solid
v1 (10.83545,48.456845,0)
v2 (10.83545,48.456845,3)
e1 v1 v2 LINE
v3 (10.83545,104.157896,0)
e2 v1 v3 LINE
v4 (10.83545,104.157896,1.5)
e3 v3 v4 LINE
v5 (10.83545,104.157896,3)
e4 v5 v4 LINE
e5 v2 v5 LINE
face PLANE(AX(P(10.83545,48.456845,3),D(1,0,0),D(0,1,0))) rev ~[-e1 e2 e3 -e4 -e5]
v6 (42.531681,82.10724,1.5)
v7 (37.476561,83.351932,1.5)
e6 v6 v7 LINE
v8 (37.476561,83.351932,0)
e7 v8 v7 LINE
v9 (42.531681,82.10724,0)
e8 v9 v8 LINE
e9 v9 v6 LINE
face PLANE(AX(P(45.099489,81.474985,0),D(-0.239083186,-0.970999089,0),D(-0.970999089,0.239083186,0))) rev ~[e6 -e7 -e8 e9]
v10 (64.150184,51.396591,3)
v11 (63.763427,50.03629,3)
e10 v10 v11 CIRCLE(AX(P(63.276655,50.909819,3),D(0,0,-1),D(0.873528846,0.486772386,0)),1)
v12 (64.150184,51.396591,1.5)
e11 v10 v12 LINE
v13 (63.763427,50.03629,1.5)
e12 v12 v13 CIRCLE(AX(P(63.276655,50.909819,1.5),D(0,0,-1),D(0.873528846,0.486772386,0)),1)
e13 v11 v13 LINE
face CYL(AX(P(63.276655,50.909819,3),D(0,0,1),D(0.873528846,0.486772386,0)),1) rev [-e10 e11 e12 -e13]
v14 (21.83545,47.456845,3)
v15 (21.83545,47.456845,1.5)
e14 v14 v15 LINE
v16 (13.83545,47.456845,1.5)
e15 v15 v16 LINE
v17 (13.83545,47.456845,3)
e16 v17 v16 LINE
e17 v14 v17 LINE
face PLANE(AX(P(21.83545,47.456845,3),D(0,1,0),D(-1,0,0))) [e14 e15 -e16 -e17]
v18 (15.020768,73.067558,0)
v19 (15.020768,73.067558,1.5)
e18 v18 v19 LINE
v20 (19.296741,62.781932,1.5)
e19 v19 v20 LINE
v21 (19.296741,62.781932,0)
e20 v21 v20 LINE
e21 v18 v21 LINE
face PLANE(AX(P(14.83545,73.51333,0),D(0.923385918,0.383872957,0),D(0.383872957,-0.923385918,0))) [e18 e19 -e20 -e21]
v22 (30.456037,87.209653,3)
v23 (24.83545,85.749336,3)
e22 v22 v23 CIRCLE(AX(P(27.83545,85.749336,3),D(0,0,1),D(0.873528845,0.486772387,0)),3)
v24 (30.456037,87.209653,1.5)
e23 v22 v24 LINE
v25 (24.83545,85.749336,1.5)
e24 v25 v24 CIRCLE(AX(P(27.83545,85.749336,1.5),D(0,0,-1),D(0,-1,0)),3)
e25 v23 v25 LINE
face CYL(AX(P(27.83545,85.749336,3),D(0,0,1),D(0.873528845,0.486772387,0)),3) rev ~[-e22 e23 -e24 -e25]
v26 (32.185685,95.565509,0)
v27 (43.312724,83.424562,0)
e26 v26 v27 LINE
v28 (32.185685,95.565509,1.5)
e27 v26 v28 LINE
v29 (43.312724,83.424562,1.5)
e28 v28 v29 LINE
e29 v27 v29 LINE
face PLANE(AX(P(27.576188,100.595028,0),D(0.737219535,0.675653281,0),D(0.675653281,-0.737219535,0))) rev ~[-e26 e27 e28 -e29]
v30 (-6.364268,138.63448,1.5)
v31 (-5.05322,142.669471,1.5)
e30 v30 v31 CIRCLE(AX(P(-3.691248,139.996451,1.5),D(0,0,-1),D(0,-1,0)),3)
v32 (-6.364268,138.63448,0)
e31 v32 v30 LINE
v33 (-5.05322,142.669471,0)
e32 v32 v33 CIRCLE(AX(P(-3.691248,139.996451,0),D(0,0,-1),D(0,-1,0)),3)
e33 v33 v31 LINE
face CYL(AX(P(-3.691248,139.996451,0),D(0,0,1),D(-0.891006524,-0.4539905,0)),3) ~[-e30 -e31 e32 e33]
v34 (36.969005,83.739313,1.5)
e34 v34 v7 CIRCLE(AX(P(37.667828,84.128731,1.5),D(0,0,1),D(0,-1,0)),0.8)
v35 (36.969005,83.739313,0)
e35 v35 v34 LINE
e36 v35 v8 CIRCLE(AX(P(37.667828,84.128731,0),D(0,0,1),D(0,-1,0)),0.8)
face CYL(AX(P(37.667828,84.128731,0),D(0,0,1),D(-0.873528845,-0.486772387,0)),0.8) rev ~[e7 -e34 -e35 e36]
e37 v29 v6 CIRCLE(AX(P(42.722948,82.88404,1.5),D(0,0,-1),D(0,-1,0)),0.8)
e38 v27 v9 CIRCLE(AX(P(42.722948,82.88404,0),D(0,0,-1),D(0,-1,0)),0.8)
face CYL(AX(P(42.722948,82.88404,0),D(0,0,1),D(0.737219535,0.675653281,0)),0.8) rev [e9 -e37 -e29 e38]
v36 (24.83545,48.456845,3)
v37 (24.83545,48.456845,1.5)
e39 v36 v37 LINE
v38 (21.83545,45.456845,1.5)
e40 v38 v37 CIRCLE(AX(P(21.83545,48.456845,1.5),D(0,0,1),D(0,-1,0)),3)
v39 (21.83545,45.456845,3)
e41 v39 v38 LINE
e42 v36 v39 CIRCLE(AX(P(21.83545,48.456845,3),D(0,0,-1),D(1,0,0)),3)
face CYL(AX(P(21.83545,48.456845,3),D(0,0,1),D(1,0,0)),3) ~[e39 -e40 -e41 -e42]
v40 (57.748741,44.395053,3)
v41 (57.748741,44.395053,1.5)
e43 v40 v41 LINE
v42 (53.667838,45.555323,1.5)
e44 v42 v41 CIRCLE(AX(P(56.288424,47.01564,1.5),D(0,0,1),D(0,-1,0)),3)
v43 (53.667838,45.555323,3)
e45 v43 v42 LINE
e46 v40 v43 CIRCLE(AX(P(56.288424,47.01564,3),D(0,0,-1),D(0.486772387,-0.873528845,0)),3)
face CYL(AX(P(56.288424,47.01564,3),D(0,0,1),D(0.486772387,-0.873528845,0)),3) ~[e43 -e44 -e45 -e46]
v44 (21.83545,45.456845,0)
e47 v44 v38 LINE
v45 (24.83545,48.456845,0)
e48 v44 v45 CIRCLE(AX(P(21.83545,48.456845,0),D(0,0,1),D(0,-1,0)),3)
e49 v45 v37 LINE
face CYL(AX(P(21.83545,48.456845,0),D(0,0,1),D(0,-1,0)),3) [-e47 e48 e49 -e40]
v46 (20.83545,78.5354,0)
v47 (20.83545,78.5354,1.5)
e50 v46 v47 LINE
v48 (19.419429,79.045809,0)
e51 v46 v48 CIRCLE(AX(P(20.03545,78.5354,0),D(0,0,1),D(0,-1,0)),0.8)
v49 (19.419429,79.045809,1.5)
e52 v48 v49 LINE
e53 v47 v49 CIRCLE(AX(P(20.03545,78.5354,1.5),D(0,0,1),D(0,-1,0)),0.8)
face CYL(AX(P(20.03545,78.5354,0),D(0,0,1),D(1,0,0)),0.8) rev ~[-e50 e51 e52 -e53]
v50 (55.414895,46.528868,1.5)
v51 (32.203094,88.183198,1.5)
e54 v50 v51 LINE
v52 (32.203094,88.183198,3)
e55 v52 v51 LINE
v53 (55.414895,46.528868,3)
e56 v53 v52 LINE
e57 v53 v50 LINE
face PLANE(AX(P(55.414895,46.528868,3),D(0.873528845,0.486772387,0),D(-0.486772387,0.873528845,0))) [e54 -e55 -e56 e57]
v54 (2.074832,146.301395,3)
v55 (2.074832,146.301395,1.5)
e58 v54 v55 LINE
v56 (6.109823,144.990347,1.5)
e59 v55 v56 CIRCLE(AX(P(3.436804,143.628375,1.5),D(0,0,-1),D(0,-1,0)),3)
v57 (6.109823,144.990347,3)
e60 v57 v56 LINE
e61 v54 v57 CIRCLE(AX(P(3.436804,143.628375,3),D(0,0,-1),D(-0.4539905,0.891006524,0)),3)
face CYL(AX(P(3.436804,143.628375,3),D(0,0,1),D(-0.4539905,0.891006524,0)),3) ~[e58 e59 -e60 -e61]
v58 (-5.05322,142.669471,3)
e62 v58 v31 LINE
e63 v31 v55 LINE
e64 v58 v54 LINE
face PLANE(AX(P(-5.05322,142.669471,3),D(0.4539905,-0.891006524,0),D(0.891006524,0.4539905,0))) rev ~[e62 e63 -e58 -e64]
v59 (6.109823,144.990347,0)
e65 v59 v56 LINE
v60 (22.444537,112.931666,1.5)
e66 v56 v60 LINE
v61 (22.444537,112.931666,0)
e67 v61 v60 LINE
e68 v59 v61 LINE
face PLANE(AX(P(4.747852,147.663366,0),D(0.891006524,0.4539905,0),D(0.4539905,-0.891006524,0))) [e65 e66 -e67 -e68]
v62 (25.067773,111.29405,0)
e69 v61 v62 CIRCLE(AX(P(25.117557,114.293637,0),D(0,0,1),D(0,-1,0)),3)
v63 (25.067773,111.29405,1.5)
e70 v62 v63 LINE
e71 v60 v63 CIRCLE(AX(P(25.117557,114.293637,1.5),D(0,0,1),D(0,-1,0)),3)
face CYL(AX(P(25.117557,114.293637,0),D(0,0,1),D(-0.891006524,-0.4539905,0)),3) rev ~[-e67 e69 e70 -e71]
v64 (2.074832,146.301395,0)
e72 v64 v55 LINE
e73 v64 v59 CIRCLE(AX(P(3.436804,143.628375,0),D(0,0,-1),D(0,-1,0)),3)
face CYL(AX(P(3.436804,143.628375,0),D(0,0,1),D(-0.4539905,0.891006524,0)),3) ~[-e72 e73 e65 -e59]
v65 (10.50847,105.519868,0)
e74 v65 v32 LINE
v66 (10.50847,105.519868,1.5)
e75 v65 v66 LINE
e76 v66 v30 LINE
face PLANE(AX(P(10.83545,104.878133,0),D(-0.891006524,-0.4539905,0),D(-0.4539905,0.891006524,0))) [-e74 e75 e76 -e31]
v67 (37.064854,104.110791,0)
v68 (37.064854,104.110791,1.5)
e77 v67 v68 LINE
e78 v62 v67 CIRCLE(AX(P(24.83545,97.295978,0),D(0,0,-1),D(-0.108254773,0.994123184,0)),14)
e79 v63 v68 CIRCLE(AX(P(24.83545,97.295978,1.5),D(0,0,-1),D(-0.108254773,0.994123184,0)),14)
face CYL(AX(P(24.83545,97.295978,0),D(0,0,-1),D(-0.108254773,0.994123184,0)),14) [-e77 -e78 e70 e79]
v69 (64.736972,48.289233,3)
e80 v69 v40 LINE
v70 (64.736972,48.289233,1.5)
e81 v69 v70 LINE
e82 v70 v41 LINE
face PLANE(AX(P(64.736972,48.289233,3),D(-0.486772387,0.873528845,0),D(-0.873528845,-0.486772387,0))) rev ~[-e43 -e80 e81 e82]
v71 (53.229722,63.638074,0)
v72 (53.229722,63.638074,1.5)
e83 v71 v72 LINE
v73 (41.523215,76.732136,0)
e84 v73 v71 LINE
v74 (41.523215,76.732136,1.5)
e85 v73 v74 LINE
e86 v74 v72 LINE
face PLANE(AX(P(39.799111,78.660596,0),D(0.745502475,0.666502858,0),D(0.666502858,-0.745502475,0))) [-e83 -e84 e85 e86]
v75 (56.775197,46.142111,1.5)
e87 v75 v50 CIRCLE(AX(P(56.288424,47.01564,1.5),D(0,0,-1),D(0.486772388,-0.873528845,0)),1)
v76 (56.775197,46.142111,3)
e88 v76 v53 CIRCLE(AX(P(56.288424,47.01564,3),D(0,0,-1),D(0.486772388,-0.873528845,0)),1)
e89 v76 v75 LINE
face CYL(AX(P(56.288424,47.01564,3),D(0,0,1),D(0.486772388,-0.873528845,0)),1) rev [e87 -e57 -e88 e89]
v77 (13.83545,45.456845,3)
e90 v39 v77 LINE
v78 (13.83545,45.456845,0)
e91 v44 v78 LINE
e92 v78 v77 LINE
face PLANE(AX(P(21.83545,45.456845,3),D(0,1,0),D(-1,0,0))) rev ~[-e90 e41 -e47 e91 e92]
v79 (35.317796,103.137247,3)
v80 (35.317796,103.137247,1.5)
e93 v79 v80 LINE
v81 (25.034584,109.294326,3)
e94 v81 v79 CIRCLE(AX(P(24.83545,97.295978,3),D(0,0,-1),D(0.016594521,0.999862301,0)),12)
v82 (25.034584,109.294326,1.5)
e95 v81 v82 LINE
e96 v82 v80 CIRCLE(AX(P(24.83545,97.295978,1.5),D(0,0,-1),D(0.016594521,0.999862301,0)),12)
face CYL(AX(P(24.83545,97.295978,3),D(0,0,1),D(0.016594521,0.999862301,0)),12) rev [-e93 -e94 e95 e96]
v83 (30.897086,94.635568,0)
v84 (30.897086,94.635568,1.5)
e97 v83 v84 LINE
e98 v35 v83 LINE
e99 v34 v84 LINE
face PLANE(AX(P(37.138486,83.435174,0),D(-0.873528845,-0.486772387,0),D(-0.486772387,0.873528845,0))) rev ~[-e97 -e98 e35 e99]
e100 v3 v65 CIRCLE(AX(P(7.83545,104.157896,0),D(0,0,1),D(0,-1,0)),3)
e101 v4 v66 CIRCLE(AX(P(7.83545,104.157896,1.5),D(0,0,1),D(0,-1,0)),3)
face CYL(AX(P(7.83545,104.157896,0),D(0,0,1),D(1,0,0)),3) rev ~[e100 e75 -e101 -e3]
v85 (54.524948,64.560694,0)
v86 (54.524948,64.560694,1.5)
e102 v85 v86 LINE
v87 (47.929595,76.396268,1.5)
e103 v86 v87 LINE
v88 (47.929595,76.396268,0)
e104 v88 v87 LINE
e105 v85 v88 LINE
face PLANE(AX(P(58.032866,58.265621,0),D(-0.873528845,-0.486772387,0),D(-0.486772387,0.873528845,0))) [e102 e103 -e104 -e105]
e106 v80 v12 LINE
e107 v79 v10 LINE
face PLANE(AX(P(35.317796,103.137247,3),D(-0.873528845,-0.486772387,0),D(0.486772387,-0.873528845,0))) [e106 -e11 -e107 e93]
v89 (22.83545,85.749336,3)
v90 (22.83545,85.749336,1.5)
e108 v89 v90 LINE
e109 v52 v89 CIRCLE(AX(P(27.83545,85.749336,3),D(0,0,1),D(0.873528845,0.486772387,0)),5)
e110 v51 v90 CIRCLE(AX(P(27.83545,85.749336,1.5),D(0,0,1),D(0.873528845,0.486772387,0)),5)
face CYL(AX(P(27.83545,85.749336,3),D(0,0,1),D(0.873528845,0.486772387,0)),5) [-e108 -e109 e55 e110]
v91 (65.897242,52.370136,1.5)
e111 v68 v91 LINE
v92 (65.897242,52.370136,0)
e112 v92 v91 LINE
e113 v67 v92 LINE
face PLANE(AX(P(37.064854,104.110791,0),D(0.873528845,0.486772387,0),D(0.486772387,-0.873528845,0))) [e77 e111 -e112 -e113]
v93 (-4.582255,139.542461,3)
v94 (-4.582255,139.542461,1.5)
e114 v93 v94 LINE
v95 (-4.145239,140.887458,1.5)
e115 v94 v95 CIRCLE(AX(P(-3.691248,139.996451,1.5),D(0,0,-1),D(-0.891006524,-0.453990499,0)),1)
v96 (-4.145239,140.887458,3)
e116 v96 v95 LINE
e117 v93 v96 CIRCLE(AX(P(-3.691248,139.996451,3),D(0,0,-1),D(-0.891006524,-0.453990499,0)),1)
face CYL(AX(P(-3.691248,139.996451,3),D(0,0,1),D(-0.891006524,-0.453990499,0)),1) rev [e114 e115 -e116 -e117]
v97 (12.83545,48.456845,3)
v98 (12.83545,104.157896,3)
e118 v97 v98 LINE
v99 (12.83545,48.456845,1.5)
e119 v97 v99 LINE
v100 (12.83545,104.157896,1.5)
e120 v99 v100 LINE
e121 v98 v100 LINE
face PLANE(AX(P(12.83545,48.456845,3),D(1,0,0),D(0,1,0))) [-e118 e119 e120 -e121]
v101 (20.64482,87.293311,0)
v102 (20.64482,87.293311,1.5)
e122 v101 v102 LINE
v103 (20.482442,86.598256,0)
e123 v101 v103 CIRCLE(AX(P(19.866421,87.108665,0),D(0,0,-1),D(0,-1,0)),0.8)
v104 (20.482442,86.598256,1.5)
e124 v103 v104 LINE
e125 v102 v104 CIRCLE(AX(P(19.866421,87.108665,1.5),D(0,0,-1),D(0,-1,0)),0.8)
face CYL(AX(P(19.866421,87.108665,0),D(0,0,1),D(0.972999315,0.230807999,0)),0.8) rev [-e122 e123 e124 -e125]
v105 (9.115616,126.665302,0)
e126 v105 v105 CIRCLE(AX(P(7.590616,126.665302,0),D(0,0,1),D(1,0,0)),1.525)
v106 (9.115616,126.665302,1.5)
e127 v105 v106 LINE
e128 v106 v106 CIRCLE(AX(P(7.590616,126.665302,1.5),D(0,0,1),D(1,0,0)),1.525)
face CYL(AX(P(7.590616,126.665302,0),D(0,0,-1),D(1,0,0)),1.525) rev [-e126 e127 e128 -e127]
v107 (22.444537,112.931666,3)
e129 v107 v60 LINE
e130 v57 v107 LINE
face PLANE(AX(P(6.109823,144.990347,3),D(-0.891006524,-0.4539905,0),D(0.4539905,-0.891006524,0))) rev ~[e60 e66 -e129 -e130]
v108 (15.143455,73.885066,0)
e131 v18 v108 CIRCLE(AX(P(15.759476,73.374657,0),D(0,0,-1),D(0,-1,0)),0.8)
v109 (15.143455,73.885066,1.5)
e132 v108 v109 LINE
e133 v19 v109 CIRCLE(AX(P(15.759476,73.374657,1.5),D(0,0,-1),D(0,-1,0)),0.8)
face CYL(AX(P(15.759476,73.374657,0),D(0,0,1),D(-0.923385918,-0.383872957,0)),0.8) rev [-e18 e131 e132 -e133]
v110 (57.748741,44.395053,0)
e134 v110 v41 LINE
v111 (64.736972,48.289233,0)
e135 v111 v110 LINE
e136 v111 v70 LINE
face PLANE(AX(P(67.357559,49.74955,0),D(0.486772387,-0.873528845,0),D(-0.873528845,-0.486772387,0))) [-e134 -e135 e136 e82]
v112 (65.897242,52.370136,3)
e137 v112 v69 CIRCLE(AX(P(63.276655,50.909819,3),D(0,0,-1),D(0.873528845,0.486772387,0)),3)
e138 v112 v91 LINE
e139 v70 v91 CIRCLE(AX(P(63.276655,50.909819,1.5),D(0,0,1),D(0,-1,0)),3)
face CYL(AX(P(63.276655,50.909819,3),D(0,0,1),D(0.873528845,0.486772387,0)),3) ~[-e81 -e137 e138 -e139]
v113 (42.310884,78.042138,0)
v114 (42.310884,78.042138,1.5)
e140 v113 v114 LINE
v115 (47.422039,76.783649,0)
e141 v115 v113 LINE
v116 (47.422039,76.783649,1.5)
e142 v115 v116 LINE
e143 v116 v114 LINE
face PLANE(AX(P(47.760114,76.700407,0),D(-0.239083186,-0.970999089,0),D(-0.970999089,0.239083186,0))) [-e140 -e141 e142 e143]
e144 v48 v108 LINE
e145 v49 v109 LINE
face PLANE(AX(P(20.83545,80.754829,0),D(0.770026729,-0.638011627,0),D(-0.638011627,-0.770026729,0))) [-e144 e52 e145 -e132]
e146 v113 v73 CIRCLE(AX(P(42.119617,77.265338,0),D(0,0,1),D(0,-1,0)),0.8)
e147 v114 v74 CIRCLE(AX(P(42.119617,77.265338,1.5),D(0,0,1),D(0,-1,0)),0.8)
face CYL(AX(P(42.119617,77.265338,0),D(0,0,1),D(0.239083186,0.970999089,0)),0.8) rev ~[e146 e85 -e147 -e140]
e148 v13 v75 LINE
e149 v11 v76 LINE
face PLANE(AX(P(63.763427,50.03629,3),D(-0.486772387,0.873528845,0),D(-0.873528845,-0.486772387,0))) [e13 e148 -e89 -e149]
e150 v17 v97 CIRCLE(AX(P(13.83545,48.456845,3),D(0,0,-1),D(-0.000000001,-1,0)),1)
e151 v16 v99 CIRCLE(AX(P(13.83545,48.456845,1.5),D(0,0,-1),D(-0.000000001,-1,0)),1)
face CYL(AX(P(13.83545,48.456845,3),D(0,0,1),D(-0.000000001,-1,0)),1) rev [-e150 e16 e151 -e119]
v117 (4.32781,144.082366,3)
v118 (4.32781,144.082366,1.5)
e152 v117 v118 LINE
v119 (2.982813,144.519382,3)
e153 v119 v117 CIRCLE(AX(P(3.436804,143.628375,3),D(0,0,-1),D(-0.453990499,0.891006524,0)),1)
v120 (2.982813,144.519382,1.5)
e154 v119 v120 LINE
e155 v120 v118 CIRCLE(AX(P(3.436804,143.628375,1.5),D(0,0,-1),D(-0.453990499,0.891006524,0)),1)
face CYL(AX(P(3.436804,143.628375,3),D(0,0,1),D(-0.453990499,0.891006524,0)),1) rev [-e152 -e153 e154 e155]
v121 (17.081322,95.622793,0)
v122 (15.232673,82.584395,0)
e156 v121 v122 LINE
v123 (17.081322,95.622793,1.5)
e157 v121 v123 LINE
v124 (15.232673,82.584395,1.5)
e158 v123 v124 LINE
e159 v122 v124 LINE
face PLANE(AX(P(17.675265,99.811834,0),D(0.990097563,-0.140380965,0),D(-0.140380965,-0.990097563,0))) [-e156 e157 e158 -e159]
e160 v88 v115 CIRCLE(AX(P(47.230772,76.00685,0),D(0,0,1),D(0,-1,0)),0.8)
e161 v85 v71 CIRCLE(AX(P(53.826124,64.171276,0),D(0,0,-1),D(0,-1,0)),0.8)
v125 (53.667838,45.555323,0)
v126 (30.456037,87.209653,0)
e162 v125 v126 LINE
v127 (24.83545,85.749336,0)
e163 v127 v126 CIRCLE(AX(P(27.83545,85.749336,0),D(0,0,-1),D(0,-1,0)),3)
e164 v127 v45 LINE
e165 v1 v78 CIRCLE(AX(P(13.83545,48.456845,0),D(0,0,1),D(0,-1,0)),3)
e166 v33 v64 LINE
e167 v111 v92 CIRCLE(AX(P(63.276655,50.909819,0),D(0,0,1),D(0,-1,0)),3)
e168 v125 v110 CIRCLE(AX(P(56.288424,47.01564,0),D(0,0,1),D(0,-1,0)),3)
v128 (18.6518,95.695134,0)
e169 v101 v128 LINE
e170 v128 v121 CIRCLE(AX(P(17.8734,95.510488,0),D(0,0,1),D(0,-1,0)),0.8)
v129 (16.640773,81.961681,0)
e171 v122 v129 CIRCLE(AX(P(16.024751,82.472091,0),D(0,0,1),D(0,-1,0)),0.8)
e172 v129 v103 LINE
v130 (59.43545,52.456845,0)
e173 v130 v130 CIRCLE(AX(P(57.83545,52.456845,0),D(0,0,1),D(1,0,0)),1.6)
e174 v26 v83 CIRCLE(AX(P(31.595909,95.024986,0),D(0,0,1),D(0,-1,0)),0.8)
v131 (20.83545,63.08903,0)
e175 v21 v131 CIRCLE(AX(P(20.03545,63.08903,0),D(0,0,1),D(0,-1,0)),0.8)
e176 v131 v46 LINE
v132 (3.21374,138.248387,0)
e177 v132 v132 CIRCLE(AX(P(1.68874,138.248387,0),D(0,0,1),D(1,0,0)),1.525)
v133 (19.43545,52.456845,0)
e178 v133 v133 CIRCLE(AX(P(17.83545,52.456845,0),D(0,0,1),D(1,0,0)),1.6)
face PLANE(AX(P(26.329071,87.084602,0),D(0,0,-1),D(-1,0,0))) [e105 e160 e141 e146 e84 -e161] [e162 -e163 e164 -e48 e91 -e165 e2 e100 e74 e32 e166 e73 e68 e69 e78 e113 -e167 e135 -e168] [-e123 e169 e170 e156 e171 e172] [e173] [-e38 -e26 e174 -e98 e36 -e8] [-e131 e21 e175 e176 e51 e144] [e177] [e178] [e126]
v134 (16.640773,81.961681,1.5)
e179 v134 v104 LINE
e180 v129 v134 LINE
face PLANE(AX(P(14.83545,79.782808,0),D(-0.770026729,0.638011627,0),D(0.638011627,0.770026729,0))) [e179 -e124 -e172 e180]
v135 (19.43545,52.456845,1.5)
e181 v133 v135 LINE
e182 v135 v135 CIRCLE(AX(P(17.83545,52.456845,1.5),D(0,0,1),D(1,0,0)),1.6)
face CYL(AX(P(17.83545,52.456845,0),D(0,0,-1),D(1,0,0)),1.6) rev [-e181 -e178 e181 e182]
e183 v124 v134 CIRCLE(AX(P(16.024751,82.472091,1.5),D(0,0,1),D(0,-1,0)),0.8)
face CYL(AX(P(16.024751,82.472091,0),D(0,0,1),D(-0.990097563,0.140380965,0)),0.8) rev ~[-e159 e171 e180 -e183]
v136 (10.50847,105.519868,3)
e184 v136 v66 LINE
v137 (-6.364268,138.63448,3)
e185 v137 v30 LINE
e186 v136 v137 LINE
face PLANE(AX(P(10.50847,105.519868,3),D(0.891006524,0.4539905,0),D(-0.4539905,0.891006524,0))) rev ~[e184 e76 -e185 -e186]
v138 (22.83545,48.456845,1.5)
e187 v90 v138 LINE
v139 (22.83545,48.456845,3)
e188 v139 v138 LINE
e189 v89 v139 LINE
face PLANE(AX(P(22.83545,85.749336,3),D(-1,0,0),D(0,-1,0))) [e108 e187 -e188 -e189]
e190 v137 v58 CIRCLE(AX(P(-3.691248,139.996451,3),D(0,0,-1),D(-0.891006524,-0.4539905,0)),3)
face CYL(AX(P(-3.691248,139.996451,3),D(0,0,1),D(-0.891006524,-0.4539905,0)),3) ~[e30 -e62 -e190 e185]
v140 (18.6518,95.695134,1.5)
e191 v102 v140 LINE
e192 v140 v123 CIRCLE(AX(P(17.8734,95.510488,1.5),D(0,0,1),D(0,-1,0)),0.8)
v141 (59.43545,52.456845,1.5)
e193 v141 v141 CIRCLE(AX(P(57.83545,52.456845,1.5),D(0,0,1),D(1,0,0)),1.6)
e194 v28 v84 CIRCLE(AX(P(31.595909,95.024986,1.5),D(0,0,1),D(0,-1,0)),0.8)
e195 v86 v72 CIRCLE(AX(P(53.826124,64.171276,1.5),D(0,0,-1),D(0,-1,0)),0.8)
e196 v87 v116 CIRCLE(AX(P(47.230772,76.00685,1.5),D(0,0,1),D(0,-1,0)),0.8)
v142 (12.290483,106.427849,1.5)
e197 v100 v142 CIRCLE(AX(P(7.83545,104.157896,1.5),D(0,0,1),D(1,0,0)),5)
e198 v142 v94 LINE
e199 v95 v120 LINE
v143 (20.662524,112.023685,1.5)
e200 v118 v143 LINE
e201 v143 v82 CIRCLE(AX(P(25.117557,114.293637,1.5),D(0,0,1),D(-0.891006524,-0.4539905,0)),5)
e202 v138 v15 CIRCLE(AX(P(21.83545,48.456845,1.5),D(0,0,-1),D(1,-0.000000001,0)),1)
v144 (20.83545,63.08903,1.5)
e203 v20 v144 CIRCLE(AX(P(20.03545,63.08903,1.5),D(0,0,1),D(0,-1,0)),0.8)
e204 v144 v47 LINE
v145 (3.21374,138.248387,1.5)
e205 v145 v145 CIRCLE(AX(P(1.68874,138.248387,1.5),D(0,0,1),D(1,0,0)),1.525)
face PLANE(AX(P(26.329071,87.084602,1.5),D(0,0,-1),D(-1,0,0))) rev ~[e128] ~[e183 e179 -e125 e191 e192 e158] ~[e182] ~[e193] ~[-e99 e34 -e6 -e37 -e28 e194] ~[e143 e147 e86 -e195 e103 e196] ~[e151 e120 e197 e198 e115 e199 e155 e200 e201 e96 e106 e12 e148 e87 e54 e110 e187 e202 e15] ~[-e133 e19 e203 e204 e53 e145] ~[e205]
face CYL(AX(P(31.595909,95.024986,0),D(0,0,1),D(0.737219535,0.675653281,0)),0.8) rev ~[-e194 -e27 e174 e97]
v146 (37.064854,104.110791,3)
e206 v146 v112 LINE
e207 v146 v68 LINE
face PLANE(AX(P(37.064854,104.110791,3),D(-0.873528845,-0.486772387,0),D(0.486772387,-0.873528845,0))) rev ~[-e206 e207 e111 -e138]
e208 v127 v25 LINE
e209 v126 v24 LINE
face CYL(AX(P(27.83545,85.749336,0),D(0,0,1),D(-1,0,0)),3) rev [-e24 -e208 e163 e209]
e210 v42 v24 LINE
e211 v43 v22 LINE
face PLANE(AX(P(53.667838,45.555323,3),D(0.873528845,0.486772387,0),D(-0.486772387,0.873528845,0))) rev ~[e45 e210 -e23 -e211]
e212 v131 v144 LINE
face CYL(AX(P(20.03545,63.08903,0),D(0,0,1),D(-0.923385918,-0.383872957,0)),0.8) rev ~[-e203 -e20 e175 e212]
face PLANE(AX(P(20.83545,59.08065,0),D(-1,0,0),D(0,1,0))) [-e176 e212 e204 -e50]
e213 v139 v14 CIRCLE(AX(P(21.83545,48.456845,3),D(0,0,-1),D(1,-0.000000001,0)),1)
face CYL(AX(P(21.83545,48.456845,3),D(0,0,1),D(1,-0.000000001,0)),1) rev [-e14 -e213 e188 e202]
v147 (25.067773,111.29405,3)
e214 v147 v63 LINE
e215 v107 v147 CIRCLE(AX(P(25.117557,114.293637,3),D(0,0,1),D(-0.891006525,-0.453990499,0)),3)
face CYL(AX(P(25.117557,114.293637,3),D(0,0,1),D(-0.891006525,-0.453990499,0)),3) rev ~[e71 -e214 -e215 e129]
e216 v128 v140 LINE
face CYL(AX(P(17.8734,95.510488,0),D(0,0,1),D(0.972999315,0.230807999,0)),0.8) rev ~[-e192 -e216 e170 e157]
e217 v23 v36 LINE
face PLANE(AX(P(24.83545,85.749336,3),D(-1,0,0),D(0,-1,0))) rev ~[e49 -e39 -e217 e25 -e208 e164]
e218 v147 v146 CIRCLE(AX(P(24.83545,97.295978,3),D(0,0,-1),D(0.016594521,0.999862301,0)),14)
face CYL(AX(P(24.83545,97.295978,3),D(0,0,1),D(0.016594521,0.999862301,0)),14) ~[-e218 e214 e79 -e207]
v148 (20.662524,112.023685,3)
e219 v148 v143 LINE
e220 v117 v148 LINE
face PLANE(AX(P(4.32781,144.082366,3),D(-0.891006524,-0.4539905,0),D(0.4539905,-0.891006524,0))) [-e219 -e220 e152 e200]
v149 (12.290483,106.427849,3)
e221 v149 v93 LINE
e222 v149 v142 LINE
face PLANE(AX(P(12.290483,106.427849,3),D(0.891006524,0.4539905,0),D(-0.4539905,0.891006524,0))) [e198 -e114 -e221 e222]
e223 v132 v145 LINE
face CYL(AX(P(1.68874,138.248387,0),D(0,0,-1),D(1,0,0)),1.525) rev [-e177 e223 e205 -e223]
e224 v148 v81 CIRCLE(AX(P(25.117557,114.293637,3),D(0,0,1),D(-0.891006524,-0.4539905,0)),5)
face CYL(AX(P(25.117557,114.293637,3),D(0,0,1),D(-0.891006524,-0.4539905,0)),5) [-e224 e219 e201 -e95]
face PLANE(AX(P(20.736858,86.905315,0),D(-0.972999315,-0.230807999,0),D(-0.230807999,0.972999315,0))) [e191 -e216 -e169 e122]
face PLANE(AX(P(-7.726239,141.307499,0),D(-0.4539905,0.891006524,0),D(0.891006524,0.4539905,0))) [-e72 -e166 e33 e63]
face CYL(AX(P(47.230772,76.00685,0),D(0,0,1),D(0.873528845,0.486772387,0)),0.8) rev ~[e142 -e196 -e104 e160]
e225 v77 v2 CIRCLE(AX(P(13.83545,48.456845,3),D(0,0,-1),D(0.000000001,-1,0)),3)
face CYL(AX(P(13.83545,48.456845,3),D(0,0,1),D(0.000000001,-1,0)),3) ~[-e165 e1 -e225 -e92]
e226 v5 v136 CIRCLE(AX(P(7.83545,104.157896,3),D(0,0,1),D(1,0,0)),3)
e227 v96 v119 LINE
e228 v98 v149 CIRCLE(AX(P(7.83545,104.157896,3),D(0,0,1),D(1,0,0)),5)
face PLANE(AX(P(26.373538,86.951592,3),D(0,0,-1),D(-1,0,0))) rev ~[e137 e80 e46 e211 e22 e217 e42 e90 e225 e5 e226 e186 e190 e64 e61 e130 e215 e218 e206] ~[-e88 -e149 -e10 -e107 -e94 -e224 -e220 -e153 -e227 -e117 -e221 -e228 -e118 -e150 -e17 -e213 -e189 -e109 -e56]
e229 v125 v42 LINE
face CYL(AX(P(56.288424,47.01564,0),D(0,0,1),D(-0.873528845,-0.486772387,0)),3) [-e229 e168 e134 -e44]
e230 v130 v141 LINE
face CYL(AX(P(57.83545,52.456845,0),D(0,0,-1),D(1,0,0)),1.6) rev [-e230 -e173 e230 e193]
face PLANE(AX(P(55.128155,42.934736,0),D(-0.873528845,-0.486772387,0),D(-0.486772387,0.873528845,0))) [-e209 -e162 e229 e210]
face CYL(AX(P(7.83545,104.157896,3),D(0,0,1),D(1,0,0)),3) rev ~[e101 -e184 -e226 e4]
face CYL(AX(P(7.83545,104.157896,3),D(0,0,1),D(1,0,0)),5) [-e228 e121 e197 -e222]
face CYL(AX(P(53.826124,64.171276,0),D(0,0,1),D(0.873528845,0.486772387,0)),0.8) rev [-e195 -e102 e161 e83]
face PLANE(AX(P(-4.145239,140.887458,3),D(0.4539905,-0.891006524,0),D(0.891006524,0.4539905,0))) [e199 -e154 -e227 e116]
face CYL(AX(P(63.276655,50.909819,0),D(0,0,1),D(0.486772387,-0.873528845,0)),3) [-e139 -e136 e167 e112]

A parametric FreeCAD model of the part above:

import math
import FreeCAD as App
import Part
import Sketcher

V = App.Vector
Q = App.Units.Quantity


def edges_at(feature, points):
    """Names of the edges that pass closest to the given points."""
    edges = feature.Shape.Edges
    near = lambda p: min(range(len(edges)), key=lambda i: edges[i].distToShape(Part.Vertex(*p))[0])
    return sorted({f"Edge{near(p) + 1}" for p in points})

doc = App.newDocument("Part")
body = doc.addObject("PartDesign::Body", "Body")

sketch1 = body.newObject("Sketcher::SketchObject", "Sketch")
sketch1.AttachmentSupport = (doc.getObject("XY_Plane"), [""])
sketch1.MapMode = "FlatFace"
sketch1.addGeometry(Part.LineSegment(V(10.83545, 104.878133, 0), V(10.83545, 45.456845, 0)), False)
sketch1.addGeometry(Part.LineSegment(V(10.83545, 45.456845, 0), V(24.83545, 45.456845, 0)), False)
sketch1.addGeometry(Part.LineSegment(V(24.83545, 45.456845, 0), V(24.83545, 97.295978, 0)), False)
sketch1.addGeometry(Part.LineSegment(V(24.83545, 97.295978, 0), V(55.128155, 42.934736, 0)), False)
sketch1.addGeometry(Part.LineSegment(V(55.128155, 42.934736, 0), V(67.357559, 49.74955, 0)), False)
sketch1.addGeometry(Part.LineSegment(V(67.357559, 49.74955, 0), V(37.064854, 104.110791, 0)), False)
sketch1.addGeometry(Part.ArcOfCircle(Part.Circle(V(24.83545, 97.295978, 0), V(0, 0, 1), 14), math.radians(29.12866), math.radians(96.214721)), False)
sketch1.addGeometry(Part.LineSegment(V(23.319883, 111.213703, 0), V(4.747852, 147.663366, 0)), False)
sketch1.addGeometry(Part.LineSegment(V(4.747852, 147.663366, 0), V(-7.726239, 141.307499, 0)), False)
sketch1.addGeometry(Part.LineSegment(V(-7.726239, 141.307499, 0), V(10.83545, 104.878133, 0)), False)
sketch1.addGeometry(Part.Circle(V(57.83545, 52.456845, 0), V(0, 0, 1), 1.6), False)
sketch1.addGeometry(Part.Circle(V(17.83545, 52.456845, 0), V(0, 0, 1), 1.6), False)
sketch1.addGeometry(Part.Circle(V(7.590616, 126.665302, 0), V(0, 0, 1), 1.525), False)
sketch1.addGeometry(Part.Circle(V(1.68874, 138.248387, 0), V(0, 0, 1), 1.525), False)
sketch1.addConstraint(Sketcher.Constraint("Coincident", 0, 2, 1, 1))
sketch1.addConstraint(Sketcher.Constraint("Coincident", 1, 2, 2, 1))
sketch1.addConstraint(Sketcher.Constraint("Coincident", 2, 2, 3, 1))
sketch1.addConstraint(Sketcher.Constraint("Coincident", 3, 2, 4, 1))
sketch1.addConstraint(Sketcher.Constraint("Coincident", 4, 2, 5, 1))
sketch1.addConstraint(Sketcher.Constraint("Tangent", 5, 2, 6, 1))
sketch1.addConstraint(Sketcher.Constraint("Coincident", 6, 2, 7, 1))
sketch1.addConstraint(Sketcher.Constraint("Coincident", 7, 2, 8, 1))
sketch1.addConstraint(Sketcher.Constraint("Coincident", 8, 2, 9, 1))
sketch1.addConstraint(Sketcher.Constraint("Coincident", 9, 2, 0, 1))
sketch1.addConstraint(Sketcher.Constraint("Vertical", 0))
sketch1.addConstraint(Sketcher.Constraint("Horizontal", 1))
sketch1.addConstraint(Sketcher.Constraint("Vertical", 2))
sketch1.addConstraint(Sketcher.Constraint("Coincident", 2, 2, 6, 3))
sketch1.addConstraint(Sketcher.Constraint("Equal", 10, 11))
sketch1.addConstraint(Sketcher.Constraint("Equal", 12, 13))
sketch1.addConstraint(Sketcher.Constraint("Perpendicular", 3, 4))
sketch1.addConstraint(Sketcher.Constraint("Perpendicular", 4, 5))
sketch1.addConstraint(Sketcher.Constraint("Perpendicular", 7, 8))
sketch1.addConstraint(Sketcher.Constraint("Perpendicular", 8, 9))
sketch1.addConstraint(Sketcher.Constraint("Horizontal", 10, 3, 11, 3))
sketch1.addConstraint(Sketcher.Constraint("Equal", 4, 8))
sketch1.addConstraint(Sketcher.Constraint("Radius", 6, 14.0))
sketch1.addConstraint(Sketcher.Constraint("Diameter", 10, 3.2))
sketch1.addConstraint(Sketcher.Constraint("Diameter", 12, 3.05))
sketch1.addConstraint(Sketcher.Constraint("DistanceX", 1, 1, 1, 2, 14.0))
sketch1.addConstraint(Sketcher.Constraint("Angle", 7, Q("117 deg")))
sketch1.addConstraint(Sketcher.Constraint("DistanceX", 6, 3, 10, 3, 33.0))
sketch1.addConstraint(Sketcher.Constraint("DistanceX", 11, 3, 10, 3, 40.0))
sketch1.addConstraint(Sketcher.Constraint("DistanceY", 0, 2, 11, 3, 7.0))
sketch1.addConstraint(Sketcher.Constraint("DistanceY", -1, 1, 8, 2, 141.307499))
sketch1.addConstraint(Sketcher.Constraint("DistanceY", 6, 2, 12, 3, 15.4516))
sketch1.addConstraint(Sketcher.Constraint("DistanceX", 7, 2, 2, 2, 20.087598))
sketch1.addConstraint(Sketcher.Constraint("DistanceY", 0, 2, 0, 1, 59.421288))
sketch1.addConstraint(Sketcher.Constraint("DistanceY", 2, 1, 2, 2, 51.839133))
sketch1.addConstraint(Sketcher.Constraint("DistanceX", -1, 1, 6, 3, 24.83545))
sketch1.addConstraint(Sketcher.Constraint("DistanceX", -1, 1, 13, 3, 1.68874))
sketch1.addConstraint(Sketcher.Constraint("DistanceX", -1, 1, 4, 2, 67.357559))
sketch1.addConstraint(Sketcher.Constraint("DistanceY", -1, 1, 4, 2, 49.74955))
sketch1.addConstraint(Sketcher.Constraint("DistanceY", 6, 3, 13, 3, 40.952409))
sketch1.addConstraint(Sketcher.Constraint("DistanceX", -1, 1, 12, 3, 7.590616))
pad1 = body.newObject("PartDesign::Pad", "Pad")
pad1.Profile = sketch1
pad1.Length = 1.5
doc.recompute()

fillet = body.newObject("PartDesign::Fillet", "Fillet")
fillet.Base = (pad1, edges_at(pad1, [
    (10.835, 45.457, 0.75),
    (10.835, 104.878, 0.75),
    (-7.726, 141.307, 0.75),
    (4.748, 147.663, 0.75),
    (23.32, 111.214, 0.75),
    (67.358, 49.75, 0.75),
    (55.128, 42.935, 0.75),
    (24.835, 97.296, 0.75),
    (24.835, 45.457, 0.75),
]))
fillet.Radius = 3

sketch2 = body.newObject("Sketcher::SketchObject", "Sketch001")
sketch2.AttachmentSupport = (doc.getObject("XY_Plane"), [""])
sketch2.MapMode = "FlatFace"
sketch2.addGeometry(Part.LineSegment(V(47.760114, 76.700407, 0), V(58.032866, 58.265621, 0)), False)
sketch2.addGeometry(Part.LineSegment(V(58.032866, 58.265621, 0), V(39.799111, 78.660596, 0)), False)
sketch2.addGeometry(Part.LineSegment(V(39.799111, 78.660596, 0), V(47.760114, 76.700407, 0)), False)
sketch2.addGeometry(Part.LineSegment(V(45.099489, 81.474985, 0), V(37.138486, 83.435174, 0)), False)
sketch2.addGeometry(Part.LineSegment(V(37.138486, 83.435174, 0), V(27.576188, 100.595028, 0)), False)
sketch2.addGeometry(Part.LineSegment(V(27.576188, 100.595028, 0), V(45.099489, 81.474985, 0)), False)
sketch2.addGeometry(Part.LineSegment(V(20.83545, 59.08065, 0), V(14.83545, 73.51333, 0)), False)
sketch2.addGeometry(Part.LineSegment(V(14.83545, 73.51333, 0), V(20.83545, 80.754829, 0)), False)
sketch2.addGeometry(Part.LineSegment(V(20.83545, 80.754829, 0), V(20.83545, 59.08065, 0)), False)
sketch2.addGeometry(Part.LineSegment(V(17.675265, 99.811834, 0), V(20.736858, 86.905315, 0)), False)
sketch2.addGeometry(Part.LineSegment(V(20.736858, 86.905315, 0), V(14.83545, 79.782808, 0)), False)
sketch2.addGeometry(Part.LineSegment(V(14.83545, 79.782808, 0), V(17.675265, 99.811834, 0)), False)
sketch2.addConstraint(Sketcher.Constraint("Coincident", 0, 2, 1, 1))
sketch2.addConstraint(Sketcher.Constraint("Coincident", 1, 2, 2, 1))
sketch2.addConstraint(Sketcher.Constraint("Coincident", 2, 2, 0, 1))
sketch2.addConstraint(Sketcher.Constraint("Coincident", 3, 2, 4, 1))
sketch2.addConstraint(Sketcher.Constraint("Coincident", 4, 2, 5, 1))
sketch2.addConstraint(Sketcher.Constraint("Coincident", 5, 2, 3, 1))
sketch2.addConstraint(Sketcher.Constraint("Coincident", 6, 2, 7, 1))
sketch2.addConstraint(Sketcher.Constraint("Coincident", 7, 2, 8, 1))
sketch2.addConstraint(Sketcher.Constraint("Coincident", 8, 2, 6, 1))
sketch2.addConstraint(Sketcher.Constraint("Coincident", 9, 2, 10, 1))
sketch2.addConstraint(Sketcher.Constraint("Coincident", 10, 2, 11, 1))
sketch2.addConstraint(Sketcher.Constraint("Coincident", 11, 2, 9, 1))
sketch2.addConstraint(Sketcher.Constraint("Vertical", 8))
sketch2.addConstraint(Sketcher.Constraint("Parallel", 2, 3))
sketch2.addConstraint(Sketcher.Constraint("Parallel", 0, 4))
sketch2.addConstraint(Sketcher.Constraint("Parallel", 7, 10))
sketch2.addConstraint(Sketcher.Constraint("Vertical", 6, 2, 10, 2))
sketch2.addConstraint(Sketcher.Constraint("Equal", 2, 3))
sketch2.addConstraint(Sketcher.Constraint("DistanceX", 6, 2, 7, 2, 6.0))
sketch2.addConstraint(Sketcher.Constraint("DistanceY", 8, 2, 8, 1, 21.674179))
sketch2.addConstraint(Sketcher.Constraint("DistanceX", 4, 2, 3, 2, 9.562298))
sketch2.addConstraint(Sketcher.Constraint("DistanceX", 4, 2, 5, 2, 17.523301))
sketch2.addConstraint(Sketcher.Constraint("DistanceY", 6, 2, 4, 2, 27.081698))
sketch2.addConstraint(Sketcher.Constraint("DistanceY", 6, 2, 7, 2, 7.241499))
sketch2.addConstraint(Sketcher.Constraint("Distance", 0, 21.103809))
sketch2.addConstraint(Sketcher.Constraint("Distance", 4, 19.64429))
sketch2.addConstraint(Sketcher.Constraint("DistanceY", -1, 1, 0, 2, 58.265621))
sketch2.addConstraint(Sketcher.Constraint("DistanceX", -1, 1, 1, 2, 39.799111))
sketch2.addConstraint(Sketcher.Constraint("DistanceY", -1, 1, 4, 2, 100.595028))
sketch2.addConstraint(Sketcher.Constraint("DistanceX", -1, 1, 5, 2, 45.099489))
sketch2.addConstraint(Sketcher.Constraint("DistanceX", -1, 1, 6, 2, 14.83545))
sketch2.addConstraint(Sketcher.Constraint("DistanceX", -1, 1, 9, 2, 20.736858))
sketch2.addConstraint(Sketcher.Constraint("DistanceY", -1, 1, 10, 2, 79.782808))
sketch2.addConstraint(Sketcher.Constraint("DistanceY", 2, 2, 1, 2, 1.960189))
sketch2.addConstraint(Sketcher.Constraint("DistanceY", 9, 2, 11, 2, 12.906519))
sketch2.addConstraint(Sketcher.Constraint("DistanceX", 11, 2, 3, 2, 19.463221))
pocket1 = body.newObject("PartDesign::Pocket", "Pocket")
pocket1.Profile = sketch2
pocket1.Type = "ThroughAll"
pocket1.Reversed = True

sketch3 = body.newObject("Sketcher::SketchObject", "Sketch002")
sketch3.AttachmentSupport = (doc.getObject("XY_Plane"), [""])
sketch3.MapMode = "FlatFace"
sketch3.AttachmentOffset = App.Placement(V(0, 0, 3), App.Rotation())
sketch3.addGeometry(Part.LineSegment(V(-5.05322, 142.669471, 0), V(2.074832, 146.301395, 0)), False)
sketch3.addGeometry(Part.ArcOfCircle(Part.Circle(V(3.436804, 143.628375, 0), V(0, 0, 1), 3), math.radians(27), math.radians(117)), False)
sketch3.addGeometry(Part.LineSegment(V(6.109823, 144.990347, 0), V(22.444537, 112.931666, 0)), False)
sketch3.addGeometry(Part.ArcOfCircle(Part.Circle(V(25.117557, 114.293637, 0), V(0, 0, 1), 3), math.radians(-153), math.radians(-90.95084)), False)
sketch3.addGeometry(Part.ArcOfCircle(Part.Circle(V(24.83545, 97.295978, 0), V(0, 0, 1), 14), math.radians(29.12866), math.radians(89.04916)), False)
sketch3.addGeometry(Part.LineSegment(V(37.064854, 104.110791, 0), V(65.897242, 52.370136, 0)), False)
sketch3.addGeometry(Part.ArcOfCircle(Part.Circle(V(63.276655, 50.909819, 0), V(0, 0, 1), 3), math.radians(-60.87134), math.radians(29.12866)), False)
sketch3.addGeometry(Part.LineSegment(V(64.736972, 48.289233, 0), V(57.748741, 44.395053, 0)), False)
sketch3.addGeometry(Part.ArcOfCircle(Part.Circle(V(56.288424, 47.01564, 0), V(0, 0, 1), 3), math.radians(-150.87134), math.radians(-60.87134)), False)
sketch3.addGeometry(Part.LineSegment(V(53.667838, 45.555323, 0), V(30.456037, 87.209653, 0)), False)
sketch3.addGeometry(Part.ArcOfCircle(Part.Circle(V(27.83545, 85.749336, 0), V(0, 0, 1), 3), math.radians(29.12866), math.radians(180)), False)
sketch3.addGeometry(Part.LineSegment(V(24.83545, 85.749336, 0), V(24.83545, 48.456845, 0)), False)
sketch3.addGeometry(Part.ArcOfCircle(Part.Circle(V(21.83545, 48.456845, 0), V(0, 0, 1), 3), math.radians(-90), math.radians(0)), False)
sketch3.addGeometry(Part.LineSegment(V(21.83545, 45.456845, 0), V(13.83545, 45.456845, 0)), False)
sketch3.addGeometry(Part.ArcOfCircle(Part.Circle(V(13.83545, 48.456845, 0), V(0, 0, 1), 3), math.radians(180), math.radians(270)), False)
sketch3.addGeometry(Part.LineSegment(V(10.83545, 48.456845, 0), V(10.83545, 104.157896, 0)), False)
sketch3.addGeometry(Part.ArcOfCircle(Part.Circle(V(7.83545, 104.157896, 0), V(0, 0, 1), 3), math.radians(0), math.radians(27)), False)
sketch3.addGeometry(Part.LineSegment(V(10.50847, 105.519868, 0), V(-6.364268, 138.63448, 0)), False)
sketch3.addGeometry(Part.ArcOfCircle(Part.Circle(V(-3.691248, 139.996451, 0), V(0, 0, 1), 3), math.radians(117), math.radians(207)), False)
sketch3.addGeometry(Part.LineSegment(V(64.150184, 51.396591, 0), V(35.317796, 103.137247, 0)), False)
sketch3.addGeometry(Part.ArcOfCircle(Part.Circle(V(24.83545, 97.295978, 0), V(0, 0, 1), 12), math.radians(29.12866), math.radians(89.04916)), False)
sketch3.addGeometry(Part.ArcOfCircle(Part.Circle(V(25.117557, 114.293637, 0), V(0, 0, 1), 5), math.radians(-153), math.radians(-90.95084)), False)
sketch3.addGeometry(Part.LineSegment(V(20.662524, 112.023685, 0), V(4.32781, 144.082366, 0)), False)
sketch3.addGeometry(Part.ArcOfCircle(Part.Circle(V(3.436804, 143.628375, 0), V(0, 0, 1), 1), math.radians(27), math.radians(117)), False)
sketch3.addGeometry(Part.LineSegment(V(2.982813, 144.519382, 0), V(-4.145239, 140.887458, 0)), False)
sketch3.addGeometry(Part.ArcOfCircle(Part.Circle(V(-3.691248, 139.996451, 0), V(0, 0, 1), 1), math.radians(117), math.radians(207)), False)
sketch3.addGeometry(Part.LineSegment(V(-4.582255, 139.542461, 0), V(12.290483, 106.427849, 0)), False)
sketch3.addGeometry(Part.ArcOfCircle(Part.Circle(V(7.83545, 104.157896, 0), V(0, 0, 1), 5), math.radians(0), math.radians(27)), False)
sketch3.addGeometry(Part.LineSegment(V(12.83545, 104.157896, 0), V(12.83545, 48.456845, 0)), False)
sketch3.addGeometry(Part.ArcOfCircle(Part.Circle(V(13.83545, 48.456845, 0), V(0, 0, 1), 1), math.radians(-180), math.radians(-90)), False)
sketch3.addGeometry(Part.LineSegment(V(13.83545, 47.456845, 0), V(21.83545, 47.456845, 0)), False)
sketch3.addGeometry(Part.ArcOfCircle(Part.Circle(V(21.83545, 48.456845, 0), V(0, 0, 1), 1), math.radians(-90), math.radians(0)), False)
sketch3.addGeometry(Part.LineSegment(V(22.83545, 48.456845, 0), V(22.83545, 85.749336, 0)), False)
sketch3.addGeometry(Part.ArcOfCircle(Part.Circle(V(27.83545, 85.749336, 0), V(0, 0, 1), 5), math.radians(29.12866), math.radians(180)), False)
sketch3.addGeometry(Part.LineSegment(V(32.203094, 88.183198, 0), V(55.414895, 46.528868, 0)), False)
sketch3.addGeometry(Part.ArcOfCircle(Part.Circle(V(56.288424, 47.01564, 0), V(0, 0, 1), 1), math.radians(-150.87134), math.radians(-60.87134)), False)
sketch3.addGeometry(Part.LineSegment(V(56.775197, 46.142111, 0), V(63.763427, 50.03629, 0)), False)
sketch3.addGeometry(Part.ArcOfCircle(Part.Circle(V(63.276655, 50.909819, 0), V(0, 0, 1), 1), math.radians(-60.87134), math.radians(29.12866)), False)
sketch3.addConstraint(Sketcher.Constraint("Tangent", 0, 2, 1, 2))
sketch3.addConstraint(Sketcher.Constraint("Tangent", 1, 1, 2, 1))
sketch3.addConstraint(Sketcher.Constraint("Tangent", 2, 2, 3, 1))
sketch3.addConstraint(Sketcher.Constraint("Tangent", 3, 2, 4, 2))
sketch3.addConstraint(Sketcher.Constraint("Tangent", 4, 1, 5, 1))
sketch3.addConstraint(Sketcher.Constraint("Tangent", 5, 2, 6, 2))
sketch3.addConstraint(Sketcher.Constraint("Tangent", 6, 1, 7, 1))
sketch3.addConstraint(Sketcher.Constraint("Tangent", 7, 2, 8, 2))
sketch3.addConstraint(Sketcher.Constraint("Tangent", 8, 1, 9, 1))
sketch3.addConstraint(Sketcher.Constraint("Tangent", 9, 2, 10, 1))
sketch3.addConstraint(Sketcher.Constraint("Tangent", 10, 2, 11, 1))
sketch3.addConstraint(Sketcher.Constraint("Tangent", 11, 2, 12, 2))
sketch3.addConstraint(Sketcher.Constraint("Tangent", 12, 1, 13, 1))
sketch3.addConstraint(Sketcher.Constraint("Tangent", 13, 2, 14, 2))
sketch3.addConstraint(Sketcher.Constraint("Tangent", 14, 1, 15, 1))
sketch3.addConstraint(Sketcher.Constraint("Tangent", 15, 2, 16, 1))
sketch3.addConstraint(Sketcher.Constraint("Tangent", 16, 2, 17, 1))
sketch3.addConstraint(Sketcher.Constraint("Tangent", 17, 2, 18, 2))
sketch3.addConstraint(Sketcher.Constraint("Tangent", 18, 1, 0, 1))
sketch3.addConstraint(Sketcher.Constraint("Tangent", 19, 2, 20, 1))
sketch3.addConstraint(Sketcher.Constraint("Tangent", 20, 2, 21, 2))
sketch3.addConstraint(Sketcher.Constraint("Tangent", 21, 1, 22, 1))
sketch3.addConstraint(Sketcher.Constraint("Tangent", 22, 2, 23, 1))
sketch3.addConstraint(Sketcher.Constraint("Tangent", 23, 2, 24, 1))
sketch3.addConstraint(Sketcher.Constraint("Tangent", 24, 2, 25, 1))
sketch3.addConstraint(Sketcher.Constraint("Tangent", 25, 2, 26, 1))
sketch3.addConstraint(Sketcher.Constraint("Tangent", 26, 2, 27, 2))
sketch3.addConstraint(Sketcher.Constraint("Tangent", 27, 1, 28, 1))
sketch3.addConstraint(Sketcher.Constraint("Tangent", 28, 2, 29, 1))
sketch3.addConstraint(Sketcher.Constraint("Tangent", 29, 2, 30, 1))
sketch3.addConstraint(Sketcher.Constraint("Tangent", 30, 2, 31, 1))
sketch3.addConstraint(Sketcher.Constraint("Tangent", 31, 2, 32, 1))
sketch3.addConstraint(Sketcher.Constraint("Tangent", 32, 2, 33, 2))
sketch3.addConstraint(Sketcher.Constraint("Tangent", 33, 1, 34, 1))
sketch3.addConstraint(Sketcher.Constraint("Tangent", 34, 2, 35, 1))
sketch3.addConstraint(Sketcher.Constraint("Tangent", 35, 2, 36, 1))
sketch3.addConstraint(Sketcher.Constraint("Tangent", 36, 2, 37, 1))
sketch3.addConstraint(Sketcher.Constraint("Tangent", 37, 2, 19, 1))
sketch3.addConstraint(Sketcher.Constraint("Vertical", 11))
sketch3.addConstraint(Sketcher.Constraint("Horizontal", 13))
sketch3.addConstraint(Sketcher.Constraint("Vertical", 15))
sketch3.addConstraint(Sketcher.Constraint("Vertical", 28))
sketch3.addConstraint(Sketcher.Constraint("Horizontal", 30))
sketch3.addConstraint(Sketcher.Constraint("Vertical", 32))
sketch3.addConstraint(Sketcher.Constraint("Coincident", 20, 3, 4, 3))
sketch3.addConstraint(Sketcher.Constraint("Coincident", 21, 3, 3, 3))
sketch3.addConstraint(Sketcher.Constraint("Coincident", 23, 3, 1, 3))
sketch3.addConstraint(Sketcher.Constraint("Coincident", 25, 3, 18, 3))
sketch3.addConstraint(Sketcher.Constraint("Coincident", 27, 3, 16, 3))
sketch3.addConstraint(Sketcher.Constraint("Coincident", 29, 3, 14, 3))
sketch3.addConstraint(Sketcher.Constraint("Coincident", 31, 3, 12, 3))
sketch3.addConstraint(Sketcher.Constraint("Coincident", 33, 3, 10, 3))
sketch3.addConstraint(Sketcher.Constraint("Coincident", 35, 3, 8, 3))
sketch3.addConstraint(Sketcher.Constraint("Coincident", 37, 3, 6, 3))
sketch3.addConstraint(Sketcher.Constraint("Equal", 1, 3))
sketch3.addConstraint(Sketcher.Constraint("Equal", 3, 6))
sketch3.addConstraint(Sketcher.Constraint("Equal", 6, 8))
sketch3.addConstraint(Sketcher.Constraint("Equal", 8, 10))
sketch3.addConstraint(Sketcher.Constraint("Equal", 10, 12))
sketch3.addConstraint(Sketcher.Constraint("Equal", 12, 14))
sketch3.addConstraint(Sketcher.Constraint("Equal", 14, 16))
sketch3.addConstraint(Sketcher.Constraint("Equal", 16, 18))
sketch3.addConstraint(Sketcher.Constraint("Equal", 23, 25))
sketch3.addConstraint(Sketcher.Constraint("Equal", 21, 27))
sketch3.addConstraint(Sketcher.Constraint("Equal", 25, 29))
sketch3.addConstraint(Sketcher.Constraint("Equal", 31, 35))
sketch3.addConstraint(Sketcher.Constraint("Equal", 35, 37))
sketch3.addConstraint(Sketcher.Constraint("Perpendicular", 0, 2))
sketch3.addConstraint(Sketcher.Constraint("Perpendicular", 5, 7))
sketch3.addConstraint(Sketcher.Constraint("Perpendicular", 7, 9))
sketch3.addConstraint(Sketcher.Constraint("Parallel", 2, 17))
sketch3.addConstraint(Sketcher.Constraint("Vertical", 20, 3, 10, 2))
sketch3.addConstraint(Sketcher.Constraint("Equal", 0, 7))
sketch3.addConstraint(Sketcher.Constraint("Radius", 1, 3.0))
sketch3.addConstraint(Sketcher.Constraint("Radius", 4, 14.0))
sketch3.addConstraint(Sketcher.Constraint("Radius", 20, 12.0))
sketch3.addConstraint(Sketcher.Constraint("DistanceX", 13, 2, 13, 1, 8.0))
sketch3.addConstraint(Sketcher.Constraint("Angle", 0, Q("27 deg")))
sketch3.addConstraint(Sketcher.Constraint("Distance", 0, 8.0))
sketch3.addConstraint(Sketcher.Constraint("Distance", 2, 35.980299))
sketch3.addConstraint(Sketcher.Constraint("DistanceY", 11, 2, 11, 1, 37.292491))
sketch3.addConstraint(Sketcher.Constraint("DistanceY", 15, 1, 15, 2, 55.701051))
sketch3.addConstraint(Sketcher.Constraint("DistanceX", 3, 3, 6, 3, 38.159098))
sketch3.addConstraint(Sketcher.Constraint("DistanceY", 10, 3, 3, 3, 28.544301))
sketch3.addConstraint(Sketcher.Constraint("DistanceX", -1, 1, 4, 3, 24.83545))
sketch3.addConstraint(Sketcher.Constraint("DistanceY", -1, 1, 4, 3, 97.295978))
pad2 = body.newObject("PartDesign::Pad", "Pad001")
pad2.Profile = sketch3
pad2.Length = 1.5
pad2.Reversed = True
doc.recompute()

fillet2 = body.newObject("PartDesign::Fillet", "Fillet001")
fillet2.Base = (pad2, edges_at(pad2, [
    (39.799, 78.661, 0.75),
    (58.033, 58.266, 0.75),
    (47.76, 76.7, 0.75),
    (45.099, 81.475, 0.75),
    (27.576, 100.595, 0.75),
    (37.138, 83.435, 0.75),
    (20.835, 80.755, 0.75),
    (14.835, 73.513, 0.75),
    (20.835, 59.081, 0.75),
    (14.835, 79.783, 0.75),
    (20.737, 86.905, 0.75),
    (17.675, 99.812, 0.75),
]))
fillet2.Radius = 0.8

doc.recompute()
